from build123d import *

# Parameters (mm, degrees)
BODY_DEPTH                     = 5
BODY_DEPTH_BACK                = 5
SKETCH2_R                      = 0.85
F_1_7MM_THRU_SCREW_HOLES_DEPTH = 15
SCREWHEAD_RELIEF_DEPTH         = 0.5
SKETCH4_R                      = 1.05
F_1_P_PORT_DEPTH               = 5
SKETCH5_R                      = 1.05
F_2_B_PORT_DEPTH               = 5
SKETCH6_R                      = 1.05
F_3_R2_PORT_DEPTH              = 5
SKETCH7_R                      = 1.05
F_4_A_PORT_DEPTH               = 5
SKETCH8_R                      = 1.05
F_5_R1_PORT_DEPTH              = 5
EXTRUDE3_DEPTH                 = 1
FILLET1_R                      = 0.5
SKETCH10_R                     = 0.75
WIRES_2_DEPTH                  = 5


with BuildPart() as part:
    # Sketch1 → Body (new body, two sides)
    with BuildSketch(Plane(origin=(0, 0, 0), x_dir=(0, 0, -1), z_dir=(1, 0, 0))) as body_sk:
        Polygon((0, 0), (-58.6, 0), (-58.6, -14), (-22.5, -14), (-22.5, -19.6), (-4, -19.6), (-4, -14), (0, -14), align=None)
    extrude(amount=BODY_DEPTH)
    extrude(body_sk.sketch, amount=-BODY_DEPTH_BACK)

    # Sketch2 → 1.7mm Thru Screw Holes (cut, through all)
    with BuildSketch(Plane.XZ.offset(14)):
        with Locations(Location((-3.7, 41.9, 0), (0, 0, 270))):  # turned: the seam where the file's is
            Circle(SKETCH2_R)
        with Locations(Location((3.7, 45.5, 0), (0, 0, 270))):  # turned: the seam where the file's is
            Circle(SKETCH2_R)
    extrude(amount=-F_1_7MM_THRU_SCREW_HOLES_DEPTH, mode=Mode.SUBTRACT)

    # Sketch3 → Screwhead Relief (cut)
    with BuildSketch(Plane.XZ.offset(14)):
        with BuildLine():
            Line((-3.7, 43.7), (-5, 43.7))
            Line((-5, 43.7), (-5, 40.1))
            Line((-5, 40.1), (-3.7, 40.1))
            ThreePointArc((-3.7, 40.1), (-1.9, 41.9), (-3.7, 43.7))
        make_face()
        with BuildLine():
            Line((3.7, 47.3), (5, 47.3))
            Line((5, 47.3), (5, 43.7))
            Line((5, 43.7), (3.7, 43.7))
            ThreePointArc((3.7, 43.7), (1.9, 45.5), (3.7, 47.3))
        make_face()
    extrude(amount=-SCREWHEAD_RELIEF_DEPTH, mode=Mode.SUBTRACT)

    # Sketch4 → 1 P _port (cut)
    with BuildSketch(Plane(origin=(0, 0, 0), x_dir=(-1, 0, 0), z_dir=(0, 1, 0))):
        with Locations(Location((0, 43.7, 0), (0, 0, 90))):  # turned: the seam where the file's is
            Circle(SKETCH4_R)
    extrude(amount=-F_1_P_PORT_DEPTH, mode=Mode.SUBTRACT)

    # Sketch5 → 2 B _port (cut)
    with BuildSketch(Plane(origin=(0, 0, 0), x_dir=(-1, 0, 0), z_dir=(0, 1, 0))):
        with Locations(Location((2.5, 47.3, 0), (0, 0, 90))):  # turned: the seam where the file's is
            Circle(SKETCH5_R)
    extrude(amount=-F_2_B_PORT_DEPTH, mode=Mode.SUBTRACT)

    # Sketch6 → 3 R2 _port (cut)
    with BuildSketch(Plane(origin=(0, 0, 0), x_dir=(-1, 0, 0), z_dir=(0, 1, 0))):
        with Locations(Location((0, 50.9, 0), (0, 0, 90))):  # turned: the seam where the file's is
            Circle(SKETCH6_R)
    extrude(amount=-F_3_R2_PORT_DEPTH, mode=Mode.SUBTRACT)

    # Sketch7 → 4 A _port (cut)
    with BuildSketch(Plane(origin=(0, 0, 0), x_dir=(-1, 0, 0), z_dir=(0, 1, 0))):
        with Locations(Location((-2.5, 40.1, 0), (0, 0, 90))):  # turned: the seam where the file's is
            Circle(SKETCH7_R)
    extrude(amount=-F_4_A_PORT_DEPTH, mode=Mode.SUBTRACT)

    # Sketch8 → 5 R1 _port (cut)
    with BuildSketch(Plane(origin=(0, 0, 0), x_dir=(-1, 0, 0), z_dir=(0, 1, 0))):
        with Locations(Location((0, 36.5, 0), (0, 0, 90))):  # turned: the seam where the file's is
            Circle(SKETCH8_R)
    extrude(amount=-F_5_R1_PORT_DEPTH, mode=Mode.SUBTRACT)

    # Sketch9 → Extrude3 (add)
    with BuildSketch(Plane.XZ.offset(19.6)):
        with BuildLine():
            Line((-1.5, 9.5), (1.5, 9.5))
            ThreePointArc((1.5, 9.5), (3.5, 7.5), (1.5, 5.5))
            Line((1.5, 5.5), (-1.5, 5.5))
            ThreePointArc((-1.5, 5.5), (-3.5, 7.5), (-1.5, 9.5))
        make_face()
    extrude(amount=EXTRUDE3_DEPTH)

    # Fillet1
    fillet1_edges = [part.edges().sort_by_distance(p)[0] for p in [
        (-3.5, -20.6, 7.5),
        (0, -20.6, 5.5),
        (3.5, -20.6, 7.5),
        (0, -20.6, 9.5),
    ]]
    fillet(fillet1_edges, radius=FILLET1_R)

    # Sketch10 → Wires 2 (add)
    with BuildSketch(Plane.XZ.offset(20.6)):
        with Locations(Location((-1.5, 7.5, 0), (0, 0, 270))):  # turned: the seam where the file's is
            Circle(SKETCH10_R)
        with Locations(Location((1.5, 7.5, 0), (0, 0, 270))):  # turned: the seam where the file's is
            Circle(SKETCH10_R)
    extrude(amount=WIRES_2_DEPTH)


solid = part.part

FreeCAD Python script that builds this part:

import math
import FreeCAD as App
import Part
import Sketcher
Q = App.Units.Quantity


def edges_at(feature, points):
    """Names of the edges that pass closest to the given points."""
    edges = feature.Shape.Edges
    near = lambda p: min(range(len(edges)), key=lambda i: edges[i].distToShape(Part.Vertex(*p))[0])
    return sorted({f"Edge{near(p) + 1}" for p in points})


def add_polygon(sketch, points):
    """Adds a closed chain of lines whose ends are joined by coincident constraints."""
    first, n = sketch.GeometryCount, len(points)
    for a, b in zip(points, points[1:] + points[:1]):
        sketch.addGeometry(Part.LineSegment(App.Vector(*a, 0), App.Vector(*b, 0)), False)
    for i in range(n):
        sketch.addConstraint(Sketcher.Constraint("Coincident", first + i, 2, first + (i + 1) % n, 1))

doc = App.newDocument("Part")
body = doc.addObject("PartDesign::Body", "Body")

sketch1 = body.newObject("Sketcher::SketchObject", "Sketch")
sketch1.AttachmentSupport = (doc.getObject("YZ_Plane"), [""])
sketch1.MapMode = "FlatFace"
add_polygon(sketch1, [(0, 0), (0, 58.6), (-14, 58.6), (-14, 22.5), (-19.6, 22.5), (-19.6, 4), (-14, 4), (-14, 0)])
sketch1.addConstraint([
    Sketcher.Constraint("Vertical", 0),
    Sketcher.Constraint("Horizontal", 1),
    Sketcher.Constraint("Vertical", 2),
    Sketcher.Constraint("Horizontal", 3),
    Sketcher.Constraint("Vertical", 4),
    Sketcher.Constraint("Horizontal", 5),
    Sketcher.Constraint("Vertical", 6),
    Sketcher.Constraint("Horizontal", 7),
    Sketcher.Constraint("Coincident", 7, 2, -1, 1),
    Sketcher.Constraint("Vertical", 2, 2, 5, 2),
    Sketcher.Constraint("DistanceX", 1, 2, 1, 1, Q("14 mm")),
    Sketcher.Constraint("DistanceY", 6, 2, 6, 1, Q("4 mm")),
    Sketcher.Constraint("DistanceX", 3, 2, 3, 1, Q("5.6 mm")),
    Sketcher.Constraint("DistanceY", 0, 1, 0, 2, Q("58.6 mm")),
    Sketcher.Constraint("DistanceY", 2, 2, 2, 1, Q("36.1 mm")),
])
pad1 = body.newObject("PartDesign::Pad", "Pad")
pad1.Profile = sketch1
pad1.Type = "TwoLengths"
pad1.Length = 5
pad1.Length2 = 5

sketch2 = body.newObject("Sketcher::SketchObject", "Sketch001")
sketch2.AttachmentSupport = (doc.getObject("XZ_Plane"), [""])
sketch2.MapMode = "FlatFace"
sketch2.AttachmentOffset = App.Placement(App.Vector(0, 0, 14), App.Rotation())
sketch2.addGeometry([
    Part.Circle(App.Vector(-3.7, 41.9, 0), App.Vector(0, 0, 1), 0.85),
    Part.Circle(App.Vector(3.7, 45.5, 0), App.Vector(0, 0, 1), 0.85),
], False)
sketch2.addConstraint([
    Sketcher.Constraint("Equal", 0, 1),
    Sketcher.Constraint("Diameter", 0, Q("1.7 mm")),
    Sketcher.Constraint("DistanceX", 0, 3, -1, 1, Q("3.7 mm")),
    Sketcher.Constraint("DistanceY", -1, 1, 0, 3, Q("41.9 mm")),
    Sketcher.Constraint("DistanceX", -1, 1, 1, 3, Q("3.7 mm")),
    Sketcher.Constraint("DistanceY", -1, 1, 1, 3, Q("45.5 mm")),
])
pocket1 = body.newObject("PartDesign::Pocket", "Pocket")
pocket1.Profile = sketch2
pocket1.Type = "ThroughAll"

sketch3 = body.newObject("Sketcher::SketchObject", "Sketch002")
sketch3.AttachmentSupport = (doc.getObject("XZ_Plane"), [""])
sketch3.MapMode = "FlatFace"
sketch3.AttachmentOffset = App.Placement(App.Vector(0, 0, 14), App.Rotation())
sketch3.addGeometry([
    Part.LineSegment(App.Vector(-3.7, 43.7, 0), App.Vector(-5, 43.7, 0)),
    Part.LineSegment(App.Vector(-5, 43.7, 0), App.Vector(-5, 40.1, 0)),
    Part.LineSegment(App.Vector(-5, 40.1, 0), App.Vector(-3.7, 40.1, 0)),
    Part.ArcOfCircle(Part.Circle(App.Vector(-3.7, 41.9, 0), App.Vector(0, 0, 1), 1.8), math.radians(-90), math.radians(90)),
    Part.LineSegment(App.Vector(5, 47.3, 0), App.Vector(3.7, 47.3, 0)),
    Part.ArcOfCircle(Part.Circle(App.Vector(3.7, 45.5, 0), App.Vector(0, 0, 1), 1.8), math.radians(90), math.radians(270)),
    Part.LineSegment(App.Vector(3.7, 43.7, 0), App.Vector(5, 43.7, 0)),
    Part.LineSegment(App.Vector(5, 43.7, 0), App.Vector(5, 47.3, 0)),
], False)
sketch3.addConstraint([
    Sketcher.Constraint("Coincident", 0, 2, 1, 1),
    Sketcher.Constraint("Coincident", 1, 2, 2, 1),
    Sketcher.Constraint("Tangent", 2, 2, 3, 1),
    Sketcher.Constraint("Tangent", 3, 2, 0, 1),
    Sketcher.Constraint("Tangent", 4, 2, 5, 1),
    Sketcher.Constraint("Tangent", 5, 2, 6, 1),
    Sketcher.Constraint("Coincident", 6, 2, 7, 1),
    Sketcher.Constraint("Coincident", 7, 2, 4, 1),
    Sketcher.Constraint("Horizontal", 0),
    Sketcher.Constraint("Vertical", 1),
    Sketcher.Constraint("Horizontal", 2),
    Sketcher.Constraint("Horizontal", 4),
    Sketcher.Constraint("Horizontal", 6),
    Sketcher.Constraint("Vertical", 7),
    Sketcher.Constraint("Equal", 3, 5),
    Sketcher.Constraint("Symmetric", 3, 2, 5, 2, -2),
    Sketcher.Constraint("Equal", 2, 4),
    Sketcher.Constraint("Radius", 3, Q("1.8 mm")),
    Sketcher.Constraint("DistanceX", 0, 2, 0, 1, Q("1.3 mm")),
    Sketcher.Constraint("DistanceX", 0, 2, -1, 1, Q("5 mm")),
    Sketcher.Constraint("DistanceY", -1, 1, 3, 3, Q("41.9 mm")),
])
pocket2 = body.newObject("PartDesign::Pocket", "Pocket001")
pocket2.Profile = sketch3
pocket2.Length = 0.5

sketch4 = body.newObject("Sketcher::SketchObject", "Sketch003")
sketch4.AttachmentSupport = (doc.getObject("XZ_Plane"), [""])
sketch4.MapMode = "FlatFace"
sketch4.addGeometry(Part.Circle(App.Vector(0, 43.7, 0), App.Vector(0, 0, 1), 1.05), False)
sketch4.addConstraint([
    Sketcher.Constraint("PointOnObject", 0, 3, -2),
    Sketcher.Constraint("Diameter", 0, Q("2.1 mm")),
    Sketcher.Constraint("DistanceY", -1, 1, 0, 3, Q("43.7 mm")),
])
pocket3 = body.newObject("PartDesign::Pocket", "Pocket002")
pocket3.Profile = sketch4
pocket3.Length = 5
pocket3.Reversed = True

sketch5 = body.newObject("Sketcher::SketchObject", "Sketch004")
sketch5.AttachmentSupport = (doc.getObject("XZ_Plane"), [""])
sketch5.MapMode = "FlatFace"
sketch5.addGeometry(Part.Circle(App.Vector(-2.5, 47.3, 0), App.Vector(0, 0, 1), 1.05), False)
sketch5.addConstraint([
    Sketcher.Constraint("Diameter", 0, Q("2.1 mm")),
    Sketcher.Constraint("DistanceX", 0, 3, -1, 1, Q("2.5 mm")),
    Sketcher.Constraint("DistanceY", -1, 1, 0, 3, Q("47.3 mm")),
])
pocket4 = body.newObject("PartDesign::Pocket", "Pocket003")
pocket4.Profile = sketch5
pocket4.Length = 5
pocket4.Reversed = True

sketch6 = body.newObject("Sketcher::SketchObject", "Sketch005")
sketch6.AttachmentSupport = (doc.getObject("XZ_Plane"), [""])
sketch6.MapMode = "FlatFace"
sketch6.addGeometry(Part.Circle(App.Vector(0, 50.9, 0), App.Vector(0, 0, 1), 1.05), False)
sketch6.addConstraint([
    Sketcher.Constraint("PointOnObject", 0, 3, -2),
    Sketcher.Constraint("Diameter", 0, Q("2.1 mm")),
    Sketcher.Constraint("DistanceY", -1, 1, 0, 3, Q("50.9 mm")),
])
pocket5 = body.newObject("PartDesign::Pocket", "Pocket004")
pocket5.Profile = sketch6
pocket5.Length = 5
pocket5.Reversed = True

sketch7 = body.newObject("Sketcher::SketchObject", "Sketch006")
sketch7.AttachmentSupport = (doc.getObject("XZ_Plane"), [""])
sketch7.MapMode = "FlatFace"
sketch7.addGeometry(Part.Circle(App.Vector(2.5, 40.1, 0), App.Vector(0, 0, 1), 1.05), False)
sketch7.addConstraint([
    Sketcher.Constraint("Diameter", 0, Q("2.1 mm")),
    Sketcher.Constraint("DistanceX", -1, 1, 0, 3, Q("2.5 mm")),
    Sketcher.Constraint("DistanceY", -1, 1, 0, 3, Q("40.1 mm")),
])
pocket6 = body.newObject("PartDesign::Pocket", "Pocket005")
pocket6.Profile = sketch7
pocket6.Length = 5
pocket6.Reversed = True

sketch8 = body.newObject("Sketcher::SketchObject", "Sketch007")
sketch8.AttachmentSupport = (doc.getObject("XZ_Plane"), [""])
sketch8.MapMode = "FlatFace"
sketch8.addGeometry(Part.Circle(App.Vector(0, 36.5, 0), App.Vector(0, 0, 1), 1.05), False)
sketch8.addConstraint([
    Sketcher.Constraint("PointOnObject", 0, 3, -2),
    Sketcher.Constraint("Diameter", 0, Q("2.1 mm")),
    Sketcher.Constraint("DistanceY", -1, 1, 0, 3, Q("36.5 mm")),
])
pocket7 = body.newObject("PartDesign::Pocket", "Pocket006")
pocket7.Profile = sketch8
pocket7.Length = 5
pocket7.Reversed = True

sketch9 = body.newObject("Sketcher::SketchObject", "Sketch008")
sketch9.AttachmentSupport = (doc.getObject("XZ_Plane"), [""])
sketch9.MapMode = "FlatFace"
sketch9.AttachmentOffset = App.Placement(App.Vector(0, 0, 19.6), App.Rotation())
sketch9.addGeometry([
    Part.LineSegment(App.Vector(1.5, 9.5, 0), App.Vector(-1.5, 9.5, 0)),
    Part.ArcOfCircle(Part.Circle(App.Vector(-1.5, 7.5, 0), App.Vector(0, 0, 1), 2), math.radians(90), math.radians(270)),
    Part.LineSegment(App.Vector(-1.5, 5.5, 0), App.Vector(1.5, 5.5, 0)),
    Part.ArcOfCircle(Part.Circle(App.Vector(1.5, 7.5, 0), App.Vector(0, 0, 1), 2), math.radians(-90), math.radians(90)),
], False)
sketch9.addConstraint([
    Sketcher.Constraint("Tangent", 0, 2, 1, 1),
    Sketcher.Constraint("Tangent", 1, 2, 2, 1),
    Sketcher.Constraint("Tangent", 2, 2, 3, 1),
    Sketcher.Constraint("Tangent", 3, 2, 0, 1),
    Sketcher.Constraint("Horizontal", 0),
    Sketcher.Constraint("Horizontal", 2),
    Sketcher.Constraint("Radius", 1, Q("2 mm")),
    Sketcher.Constraint("DistanceX", 0, 2, 0, 1, Q("3 mm")),
    Sketcher.Constraint("DistanceX", 1, 3, -1, 1, Q("1.5 mm")),
    Sketcher.Constraint("DistanceY", -1, 1, 1, 3, Q("7.5 mm")),
])
pad2 = body.newObject("PartDesign::Pad", "Pad001")
pad2.Profile = sketch9
pad2.Length = 1
doc.recompute()

fillet = body.newObject("PartDesign::Fillet", "Fillet")
fillet.Base = (pad2, edges_at(pad2, [
    (-3.5, -20.6, 7.5),
    (0, -20.6, 5.5),
    (3.5, -20.6, 7.5),
    (0, -20.6, 9.5),
]))
fillet.Radius = 0.5

sketch10 = body.newObject("Sketcher::SketchObject", "Sketch009")
sketch10.AttachmentSupport = (doc.getObject("XZ_Plane"), [""])
sketch10.MapMode = "FlatFace"
sketch10.AttachmentOffset = App.Placement(App.Vector(0, 0, 20.6), App.Rotation())
sketch10.addGeometry([
    Part.Circle(App.Vector(-1.5, 7.5, 0), App.Vector(0, 0, 1), 0.75),
    Part.Circle(App.Vector(1.5, 7.5, 0), App.Vector(0, 0, 1), 0.75),
], False)
sketch10.addConstraint([
    Sketcher.Constraint("Equal", 0, 1),
    Sketcher.Constraint("Symmetric", 0, 3, 1, 3, -2),
    Sketcher.Constraint("Diameter", 0, Q("1.5 mm")),
    Sketcher.Constraint("DistanceX", 0, 3, 1, 3, Q("3 mm")),
    Sketcher.Constraint("DistanceY", -1, 1, 0, 3, Q("7.5 mm")),
])
pad3 = body.newObject("PartDesign::Pad", "Pad002")
pad3.Profile = sketch10
pad3.Length = 5

doc.recompute()
